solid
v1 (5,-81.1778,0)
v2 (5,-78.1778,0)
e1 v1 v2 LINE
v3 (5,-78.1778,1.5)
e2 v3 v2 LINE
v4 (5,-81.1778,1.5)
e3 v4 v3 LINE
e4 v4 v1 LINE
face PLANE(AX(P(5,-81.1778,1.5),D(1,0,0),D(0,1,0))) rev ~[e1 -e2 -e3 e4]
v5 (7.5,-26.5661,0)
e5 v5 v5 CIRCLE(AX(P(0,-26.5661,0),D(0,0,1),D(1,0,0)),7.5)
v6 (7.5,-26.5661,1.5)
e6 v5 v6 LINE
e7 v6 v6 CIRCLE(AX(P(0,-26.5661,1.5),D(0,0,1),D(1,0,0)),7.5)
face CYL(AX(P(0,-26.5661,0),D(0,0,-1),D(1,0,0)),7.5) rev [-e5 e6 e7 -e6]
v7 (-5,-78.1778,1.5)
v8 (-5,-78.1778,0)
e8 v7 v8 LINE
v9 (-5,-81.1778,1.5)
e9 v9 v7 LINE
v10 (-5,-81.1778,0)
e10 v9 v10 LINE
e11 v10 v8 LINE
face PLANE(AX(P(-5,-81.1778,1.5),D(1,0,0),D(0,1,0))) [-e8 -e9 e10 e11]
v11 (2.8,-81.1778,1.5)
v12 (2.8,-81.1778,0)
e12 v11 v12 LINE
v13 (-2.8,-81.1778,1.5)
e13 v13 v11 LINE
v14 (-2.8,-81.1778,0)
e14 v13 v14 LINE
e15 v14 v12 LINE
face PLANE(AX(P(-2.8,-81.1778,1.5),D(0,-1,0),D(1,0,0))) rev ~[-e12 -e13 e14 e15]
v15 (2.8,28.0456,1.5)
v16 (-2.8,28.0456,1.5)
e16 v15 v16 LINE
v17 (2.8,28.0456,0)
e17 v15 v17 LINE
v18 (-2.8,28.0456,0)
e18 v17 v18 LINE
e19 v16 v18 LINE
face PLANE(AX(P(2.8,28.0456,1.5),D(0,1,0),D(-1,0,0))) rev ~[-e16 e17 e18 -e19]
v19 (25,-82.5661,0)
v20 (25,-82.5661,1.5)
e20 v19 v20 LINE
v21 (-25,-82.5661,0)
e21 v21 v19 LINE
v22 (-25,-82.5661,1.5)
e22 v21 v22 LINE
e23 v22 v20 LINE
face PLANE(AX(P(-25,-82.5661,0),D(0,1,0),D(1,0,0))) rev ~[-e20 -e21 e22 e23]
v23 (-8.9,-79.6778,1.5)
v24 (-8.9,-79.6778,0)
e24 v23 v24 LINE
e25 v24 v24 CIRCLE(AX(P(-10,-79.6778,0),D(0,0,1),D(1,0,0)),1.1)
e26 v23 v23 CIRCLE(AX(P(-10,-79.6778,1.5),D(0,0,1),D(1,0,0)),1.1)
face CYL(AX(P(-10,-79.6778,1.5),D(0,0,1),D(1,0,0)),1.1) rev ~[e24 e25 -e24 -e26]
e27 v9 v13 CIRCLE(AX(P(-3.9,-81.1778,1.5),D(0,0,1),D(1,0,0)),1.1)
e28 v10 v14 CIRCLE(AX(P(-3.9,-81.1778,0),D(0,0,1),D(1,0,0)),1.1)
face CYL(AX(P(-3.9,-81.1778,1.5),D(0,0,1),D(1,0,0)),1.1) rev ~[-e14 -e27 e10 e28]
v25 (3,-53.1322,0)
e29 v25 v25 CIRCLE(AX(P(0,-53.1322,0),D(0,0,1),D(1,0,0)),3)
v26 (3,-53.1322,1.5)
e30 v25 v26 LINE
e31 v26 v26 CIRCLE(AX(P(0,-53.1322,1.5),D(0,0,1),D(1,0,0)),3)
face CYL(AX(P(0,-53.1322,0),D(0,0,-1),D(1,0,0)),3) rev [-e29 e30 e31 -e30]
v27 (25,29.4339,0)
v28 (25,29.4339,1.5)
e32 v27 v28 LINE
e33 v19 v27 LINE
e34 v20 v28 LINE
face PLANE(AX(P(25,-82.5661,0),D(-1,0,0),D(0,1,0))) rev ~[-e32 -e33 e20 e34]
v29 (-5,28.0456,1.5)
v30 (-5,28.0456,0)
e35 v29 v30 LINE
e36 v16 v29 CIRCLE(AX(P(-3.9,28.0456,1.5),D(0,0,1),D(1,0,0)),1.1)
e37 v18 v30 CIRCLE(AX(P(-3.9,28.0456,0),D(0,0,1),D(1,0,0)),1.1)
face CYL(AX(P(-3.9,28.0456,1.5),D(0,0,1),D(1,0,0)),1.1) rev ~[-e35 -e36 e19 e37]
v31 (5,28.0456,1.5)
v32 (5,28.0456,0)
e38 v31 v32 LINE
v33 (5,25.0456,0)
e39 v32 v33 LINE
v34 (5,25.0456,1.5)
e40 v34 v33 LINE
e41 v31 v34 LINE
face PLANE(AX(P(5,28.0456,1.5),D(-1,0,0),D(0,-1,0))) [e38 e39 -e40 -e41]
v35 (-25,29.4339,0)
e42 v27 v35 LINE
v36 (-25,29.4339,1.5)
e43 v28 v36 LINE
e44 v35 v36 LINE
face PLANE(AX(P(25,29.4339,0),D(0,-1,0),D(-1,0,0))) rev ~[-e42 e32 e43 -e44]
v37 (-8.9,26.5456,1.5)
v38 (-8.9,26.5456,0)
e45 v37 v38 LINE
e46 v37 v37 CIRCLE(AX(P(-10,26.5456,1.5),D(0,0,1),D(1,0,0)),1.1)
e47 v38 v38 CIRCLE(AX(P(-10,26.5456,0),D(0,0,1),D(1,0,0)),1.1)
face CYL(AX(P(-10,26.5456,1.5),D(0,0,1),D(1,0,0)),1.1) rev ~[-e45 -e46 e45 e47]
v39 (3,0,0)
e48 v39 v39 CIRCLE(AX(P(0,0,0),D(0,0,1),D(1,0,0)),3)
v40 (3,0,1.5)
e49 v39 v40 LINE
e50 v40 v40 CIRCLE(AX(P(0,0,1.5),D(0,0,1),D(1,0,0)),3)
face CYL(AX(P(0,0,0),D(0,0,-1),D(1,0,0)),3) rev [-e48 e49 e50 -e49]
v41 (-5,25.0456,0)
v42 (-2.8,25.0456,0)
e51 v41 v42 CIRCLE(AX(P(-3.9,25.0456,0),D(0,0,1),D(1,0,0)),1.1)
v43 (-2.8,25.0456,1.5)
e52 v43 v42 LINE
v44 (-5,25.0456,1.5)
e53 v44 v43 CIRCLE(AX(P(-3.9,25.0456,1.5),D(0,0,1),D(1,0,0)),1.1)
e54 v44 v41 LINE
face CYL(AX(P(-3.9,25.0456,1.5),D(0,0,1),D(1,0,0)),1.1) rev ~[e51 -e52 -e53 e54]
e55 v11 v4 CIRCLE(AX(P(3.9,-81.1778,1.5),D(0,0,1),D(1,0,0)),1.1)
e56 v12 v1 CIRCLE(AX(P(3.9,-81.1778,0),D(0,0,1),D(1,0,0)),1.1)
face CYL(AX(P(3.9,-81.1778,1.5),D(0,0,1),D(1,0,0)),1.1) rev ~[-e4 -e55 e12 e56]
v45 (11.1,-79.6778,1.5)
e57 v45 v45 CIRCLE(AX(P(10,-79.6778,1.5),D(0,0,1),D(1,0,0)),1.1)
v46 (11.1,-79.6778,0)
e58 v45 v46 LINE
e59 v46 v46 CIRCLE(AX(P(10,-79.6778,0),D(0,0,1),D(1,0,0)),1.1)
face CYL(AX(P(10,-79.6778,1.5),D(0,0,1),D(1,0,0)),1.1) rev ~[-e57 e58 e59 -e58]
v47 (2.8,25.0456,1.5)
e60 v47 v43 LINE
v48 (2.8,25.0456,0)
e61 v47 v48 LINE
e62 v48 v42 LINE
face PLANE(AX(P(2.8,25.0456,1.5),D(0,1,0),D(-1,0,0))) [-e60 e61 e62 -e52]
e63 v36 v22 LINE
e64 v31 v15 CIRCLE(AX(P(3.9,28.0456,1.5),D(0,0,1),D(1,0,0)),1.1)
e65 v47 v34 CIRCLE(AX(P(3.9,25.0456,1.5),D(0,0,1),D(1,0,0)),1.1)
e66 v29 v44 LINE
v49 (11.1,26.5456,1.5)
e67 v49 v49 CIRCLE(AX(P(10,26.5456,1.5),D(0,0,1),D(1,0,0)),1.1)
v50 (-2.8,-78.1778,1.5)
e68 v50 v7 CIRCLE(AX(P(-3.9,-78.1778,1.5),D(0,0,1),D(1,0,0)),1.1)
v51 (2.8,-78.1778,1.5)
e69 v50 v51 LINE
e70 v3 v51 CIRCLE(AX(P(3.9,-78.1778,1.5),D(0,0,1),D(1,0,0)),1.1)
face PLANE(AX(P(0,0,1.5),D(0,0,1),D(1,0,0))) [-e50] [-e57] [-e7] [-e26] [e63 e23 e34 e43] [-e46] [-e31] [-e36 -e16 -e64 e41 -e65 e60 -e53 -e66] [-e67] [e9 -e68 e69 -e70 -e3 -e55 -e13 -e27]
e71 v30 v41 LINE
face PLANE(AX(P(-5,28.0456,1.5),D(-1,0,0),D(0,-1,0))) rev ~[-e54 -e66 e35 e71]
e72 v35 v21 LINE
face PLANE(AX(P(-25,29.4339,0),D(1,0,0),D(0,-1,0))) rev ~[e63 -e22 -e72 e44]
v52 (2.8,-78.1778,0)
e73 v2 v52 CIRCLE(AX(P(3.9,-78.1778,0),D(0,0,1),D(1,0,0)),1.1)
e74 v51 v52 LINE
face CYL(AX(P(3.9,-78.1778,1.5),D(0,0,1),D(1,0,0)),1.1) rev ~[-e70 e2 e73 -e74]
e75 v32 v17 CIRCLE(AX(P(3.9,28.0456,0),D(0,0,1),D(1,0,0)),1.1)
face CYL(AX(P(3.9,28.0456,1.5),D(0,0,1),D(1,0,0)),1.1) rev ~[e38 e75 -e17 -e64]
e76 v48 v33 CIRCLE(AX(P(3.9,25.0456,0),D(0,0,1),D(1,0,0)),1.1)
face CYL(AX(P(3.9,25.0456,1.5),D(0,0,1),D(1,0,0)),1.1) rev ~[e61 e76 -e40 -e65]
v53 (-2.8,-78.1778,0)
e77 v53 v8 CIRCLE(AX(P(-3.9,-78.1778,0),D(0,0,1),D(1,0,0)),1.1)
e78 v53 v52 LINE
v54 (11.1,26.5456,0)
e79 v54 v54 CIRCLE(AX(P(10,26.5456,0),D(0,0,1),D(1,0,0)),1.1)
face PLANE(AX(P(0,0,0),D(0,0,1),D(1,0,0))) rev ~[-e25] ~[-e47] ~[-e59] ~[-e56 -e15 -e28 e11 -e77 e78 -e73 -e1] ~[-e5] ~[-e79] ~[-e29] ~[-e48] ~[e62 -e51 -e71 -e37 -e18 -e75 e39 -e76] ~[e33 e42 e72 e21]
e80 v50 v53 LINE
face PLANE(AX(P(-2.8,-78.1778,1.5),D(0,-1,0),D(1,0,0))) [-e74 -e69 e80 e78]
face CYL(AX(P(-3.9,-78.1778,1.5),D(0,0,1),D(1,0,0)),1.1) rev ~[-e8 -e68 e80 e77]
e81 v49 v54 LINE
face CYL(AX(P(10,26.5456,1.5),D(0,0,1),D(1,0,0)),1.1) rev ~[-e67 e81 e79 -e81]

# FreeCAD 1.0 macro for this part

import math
import FreeCAD as App
import Part
import Sketcher

V = App.Vector

doc = App.newDocument("Part")
body = doc.addObject("PartDesign::Body", "Body")

sketch1 = body.newObject("Sketcher::SketchObject", "Sketch")
sketch1.AttachmentSupport = (doc.getObject("XY_Plane"), [""])
sketch1.MapMode = "FlatFace"
sketch1.addGeometry([
    Part.LineSegment(V(25, -82.6, 0), V(25, 29.4, 0)),
    Part.LineSegment(V(25, 29.4, 0), V(-25, 29.4, 0)),
    Part.LineSegment(V(-25, 29.4, 0), V(-25, -82.6, 0)),
    Part.LineSegment(V(-25, -82.6, 0), V(25, -82.6, 0)),
    Part.Circle(V(0, -53.1, 0), V(0, 0, 1), 3),
    Part.Circle(V(0, -26.6, 0), V(0, 0, 1), 7.5),
    Part.Circle(V(0, 0, 0), V(0, 0, 1), 3),
], False)
sketch1.addConstraint([
    Sketcher.Constraint("Coincident", 0, 2, 1, 1),
    Sketcher.Constraint("Coincident", 1, 2, 2, 1),
    Sketcher.Constraint("Coincident", 2, 2, 3, 1),
    Sketcher.Constraint("Coincident", 3, 2, 0, 1),
    Sketcher.Constraint("Vertical", 0),
    Sketcher.Constraint("Horizontal", 1),
    Sketcher.Constraint("Vertical", 2),
    Sketcher.Constraint("Horizontal", 3),
    Sketcher.Constraint("Coincident", 6, 3, -1, 1),
    Sketcher.Constraint("Equal", 4, 6),
    Sketcher.Constraint("PointOnObject", 4, 3, -2),
    Sketcher.Constraint("PointOnObject", 5, 3, -2),
    Sketcher.Constraint("Diameter", 4, 6.0),
    Sketcher.Constraint("Diameter", 5, 15.0),
    Sketcher.Constraint("DistanceX", 1, 2, 1, 1, 50.0),
    Sketcher.Constraint("DistanceY", 0, 1, 0, 2, 112.0),
    Sketcher.Constraint("DistanceX", -1, 1, 0, 2, 25.0),
    Sketcher.Constraint("DistanceY", 5, 3, 0, 2, 56.0),
    Sketcher.Constraint("DistanceY", 5, 3, -1, 1, 26.566),
    Sketcher.Constraint("DistanceY", 4, 3, 5, 3, 26.566),
])
pad1 = body.newObject("PartDesign::Pad", "Pad")
pad1.Profile = sketch1
pad1.Length = 1.5

sketch2 = body.newObject("Sketcher::SketchObject", "Sketch001")
sketch2.AttachmentSupport = (doc.getObject("XY_Plane"), [""])
sketch2.MapMode = "FlatFace"
sketch2.AttachmentOffset = App.Placement(V(0, 0, 1.5), App.Rotation())
sketch2.addGeometry([
    Part.ArcOfCircle(Part.Circle(V(-3.9, -78.2, 0), V(0, 0, 1), 1.1), math.radians(0), math.radians(180)),
    Part.LineSegment(V(-5, -78.2, 0), V(-5, -81.2, 0)),
    Part.ArcOfCircle(Part.Circle(V(-3.9, -81.2, 0), V(0, 0, 1), 1.1), math.radians(180), math.radians(360)),
    Part.LineSegment(V(-2.8, -81.2, 0), V(2.8, -81.2, 0)),
    Part.ArcOfCircle(Part.Circle(V(3.9, -81.2, 0), V(0, 0, 1), 1.1), math.radians(180), math.radians(360)),
    Part.LineSegment(V(5, -81.2, 0), V(5, -78.2, 0)),
    Part.ArcOfCircle(Part.Circle(V(3.9, -78.2, 0), V(0, 0, 1), 1.1), math.radians(0), math.radians(180)),
    Part.LineSegment(V(2.8, -78.2, 0), V(-2.8, -78.2, 0)),
    Part.Circle(V(-10, -79.7, 0), V(0, 0, 1), 1.1),
    Part.Circle(V(10, -79.7, 0), V(0, 0, 1), 1.1),
    Part.ArcOfCircle(Part.Circle(V(-3.9, 25, 0), V(0, 0, 1), 1.1), math.radians(180), math.radians(360)),
    Part.LineSegment(V(-2.8, 25, 0), V(2.8, 25, 0)),
    Part.ArcOfCircle(Part.Circle(V(3.9, 25, 0), V(0, 0, 1), 1.1), math.radians(180), math.radians(360)),
    Part.LineSegment(V(5, 25, 0), V(5, 28, 0)),
    Part.ArcOfCircle(Part.Circle(V(3.9, 28, 0), V(0, 0, 1), 1.1), math.radians(0), math.radians(180)),
    Part.LineSegment(V(2.8, 28, 0), V(-2.8, 28, 0)),
    Part.ArcOfCircle(Part.Circle(V(-3.9, 28, 0), V(0, 0, 1), 1.1), math.radians(0), math.radians(180)),
    Part.LineSegment(V(-5, 28, 0), V(-5, 25, 0)),
    Part.Circle(V(-10, 26.5, 0), V(0, 0, 1), 1.1),
    Part.Circle(V(10, 26.5, 0), V(0, 0, 1), 1.1),
], False)
sketch2.addConstraint([
    Sketcher.Constraint("Tangent", 0, 2, 1, 1),
    Sketcher.Constraint("Tangent", 1, 2, 2, 1),
    Sketcher.Constraint("Coincident", 2, 2, 3, 1),
    Sketcher.Constraint("Coincident", 3, 2, 4, 1),
    Sketcher.Constraint("Tangent", 4, 2, 5, 1),
    Sketcher.Constraint("Tangent", 5, 2, 6, 1),
    Sketcher.Constraint("Coincident", 6, 2, 7, 1),
    Sketcher.Constraint("Coincident", 7, 2, 0, 1),
    Sketcher.Constraint("Coincident", 10, 2, 11, 1),
    Sketcher.Constraint("Coincident", 11, 2, 12, 1),
    Sketcher.Constraint("Tangent", 12, 2, 13, 1),
    Sketcher.Constraint("Tangent", 13, 2, 14, 1),
    Sketcher.Constraint("Coincident", 14, 2, 15, 1),
    Sketcher.Constraint("Coincident", 15, 2, 16, 1),
    Sketcher.Constraint("Tangent", 16, 2, 17, 1),
    Sketcher.Constraint("Tangent", 17, 2, 10, 1),
    Sketcher.Constraint("Vertical", 1),
    Sketcher.Constraint("Horizontal", 3),
    Sketcher.Constraint("Vertical", 5),
    Sketcher.Constraint("Horizontal", 7),
    Sketcher.Constraint("Horizontal", 11),
    Sketcher.Constraint("Vertical", 13),
    Sketcher.Constraint("Horizontal", 15),
    Sketcher.Constraint("Vertical", 17),
    Sketcher.Constraint("Equal", 0, 2),
    Sketcher.Constraint("Equal", 2, 4),
    Sketcher.Constraint("Equal", 4, 6),
    Sketcher.Constraint("Equal", 6, 8),
    Sketcher.Constraint("Equal", 8, 9),
    Sketcher.Constraint("Equal", 9, 10),
    Sketcher.Constraint("Equal", 10, 12),
    Sketcher.Constraint("Equal", 12, 14),
    Sketcher.Constraint("Equal", 14, 16),
    Sketcher.Constraint("Equal", 16, 18),
    Sketcher.Constraint("Equal", 18, 19),
    Sketcher.Constraint("Symmetric", 2, 3, 4, 3, -2),
    Sketcher.Constraint("Symmetric", 8, 3, 9, 3, -2),
    Sketcher.Constraint("Symmetric", 10, 3, 12, 3, -2),
    Sketcher.Constraint("Symmetric", 18, 3, 19, 3, -2),
    Sketcher.Constraint("Horizontal", 0, 3, 6, 3),
    Sketcher.Constraint("Horizontal", 14, 3, 16, 3),
    Sketcher.Constraint("Horizontal", 1, 2, 2, 2),
    Sketcher.Constraint("Horizontal", 5, 2, 6, 2),
    Sketcher.Constraint("Horizontal", 12, 3, 10, 2),
    Sketcher.Constraint("Horizontal", 13, 2, 14, 2),
    Sketcher.Constraint("Vertical", 2, 3, 10, 3),
    Sketcher.Constraint("Vertical", 8, 3, 18, 3),
    Sketcher.Constraint("Equal", 5, 13),
    Sketcher.Constraint("Diameter", 8, 2.2),
    Sketcher.Constraint("DistanceY", 1, 2, 1, 1, 3.0),
    Sketcher.Constraint("DistanceX", 3, 1, 3, 2, 5.6),
    Sketcher.Constraint("DistanceX", 8, 3, -1, 1, 10.0),
    Sketcher.Constraint("DistanceY", 8, 3, 0, 3, 1.5),
    Sketcher.Constraint("DistanceY", 10, 3, 18, 3, 1.5),
    Sketcher.Constraint("DistanceY", 0, 3, -1, 1, 78.1778),
    Sketcher.Constraint("DistanceY", -1, 1, 10, 3, 25.0456),
])
pocket1 = body.newObject("PartDesign::Pocket", "Pocket")
pocket1.Profile = sketch2
pocket1.Type = "ThroughAll"

doc.recompute()
